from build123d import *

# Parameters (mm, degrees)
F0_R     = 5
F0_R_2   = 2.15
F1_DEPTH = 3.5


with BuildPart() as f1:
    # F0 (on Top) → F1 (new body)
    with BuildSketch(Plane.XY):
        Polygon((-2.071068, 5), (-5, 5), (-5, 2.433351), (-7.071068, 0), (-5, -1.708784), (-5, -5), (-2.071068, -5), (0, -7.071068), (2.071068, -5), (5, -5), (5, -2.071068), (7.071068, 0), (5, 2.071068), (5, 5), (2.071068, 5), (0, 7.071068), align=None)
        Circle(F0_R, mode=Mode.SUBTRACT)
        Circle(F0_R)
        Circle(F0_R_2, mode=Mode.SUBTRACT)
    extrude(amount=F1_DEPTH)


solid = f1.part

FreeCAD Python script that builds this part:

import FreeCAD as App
import Part
import Sketcher
Q = App.Units.Quantity


def add_polygon(sketch, points):
    """Adds a closed chain of lines whose ends are joined by coincident constraints."""
    first, n = sketch.GeometryCount, len(points)
    for a, b in zip(points, points[1:] + points[:1]):
        sketch.addGeometry(Part.LineSegment(App.Vector(*a, 0), App.Vector(*b, 0)), False)
    for i in range(n):
        sketch.addConstraint(Sketcher.Constraint("Coincident", first + i, 2, first + (i + 1) % n, 1))

doc = App.newDocument("Part")
body = doc.addObject("PartDesign::Body", "Body")

# Sketch on XY plane
sketch1 = body.newObject("Sketcher::SketchObject", "Sketch")
sketch1.AttachmentSupport = (doc.getObject("XY_Plane"), [""])
sketch1.MapMode = "FlatFace"
add_polygon(sketch1, [(-2.1, 5), (-5, 5), (-5, 2.4), (-7.1, 0), (-5, -1.7), (-5, -5), (-2.1, -5), (0, -7.1), (2.1, -5), (5, -5), (5, -2.1), (7.1, 0), (5, 2.1), (5, 5), (2.1, 5), (0, 7.1)])  # lines 0-15
sketch1.addGeometry(Part.Circle(App.Vector(0, 0, 0), App.Vector(0, 0, 1), 2.1), False)  # 16
sketch1.addConstraint([
    Sketcher.Constraint("Horizontal", 0),
    Sketcher.Constraint("Vertical", 1),
    Sketcher.Constraint("Vertical", 4),
    Sketcher.Constraint("Horizontal", 5),
    Sketcher.Constraint("Horizontal", 8),
    Sketcher.Constraint("Vertical", 9),
    Sketcher.Constraint("Vertical", 12),
    Sketcher.Constraint("Horizontal", 13),
    Sketcher.Constraint("Coincident", 16, 3, -1, 1),
    Sketcher.Constraint("Symmetric", 0, 2, 8, 2, -1, 1),
    Sketcher.Constraint("Symmetric", 2, 2, 10, 2, -1, 1),
    Sketcher.Constraint("Symmetric", 4, 2, 12, 2, -1, 1),
    Sketcher.Constraint("Symmetric", 6, 2, 14, 2, -1, 1),
    Sketcher.Constraint("Symmetric", 5, 2, 7, 2, -2),
    Sketcher.Constraint("Symmetric", 9, 2, 11, 2, -1),
    Sketcher.Constraint("PointOnObject", 2, 2, -1),
    Sketcher.Constraint("PointOnObject", 6, 2, -2),
    Sketcher.Constraint("Perpendicular", 6, 7),
    Sketcher.Constraint("Parallel", 7, 10),
    Sketcher.Constraint("Parallel", 11, 14),
    Sketcher.Constraint("Perpendicular", 14, 15),
    Sketcher.Constraint("Equal", 13, 9),
    Sketcher.Constraint("Equal", 7, 10),
    Sketcher.Constraint("Diameter", 16, Q("4.3 mm")),
    Sketcher.Constraint("DistanceX", 0, 2, -1, 1, Q("5 mm")),
    Sketcher.Constraint("DistanceY", 1, 2, 1, 1, Q("2.566649 mm")),
    Sketcher.Constraint("Distance", 2, Q("3.19539 mm")),
    Sketcher.Constraint("DistanceY", 4, 2, 4, 1, Q("3.291216 mm")),
])
pad1 = body.newObject("PartDesign::Pad", "Pad")
pad1.Profile = sketch1
pad1.Length = 3.5

doc.recompute()
